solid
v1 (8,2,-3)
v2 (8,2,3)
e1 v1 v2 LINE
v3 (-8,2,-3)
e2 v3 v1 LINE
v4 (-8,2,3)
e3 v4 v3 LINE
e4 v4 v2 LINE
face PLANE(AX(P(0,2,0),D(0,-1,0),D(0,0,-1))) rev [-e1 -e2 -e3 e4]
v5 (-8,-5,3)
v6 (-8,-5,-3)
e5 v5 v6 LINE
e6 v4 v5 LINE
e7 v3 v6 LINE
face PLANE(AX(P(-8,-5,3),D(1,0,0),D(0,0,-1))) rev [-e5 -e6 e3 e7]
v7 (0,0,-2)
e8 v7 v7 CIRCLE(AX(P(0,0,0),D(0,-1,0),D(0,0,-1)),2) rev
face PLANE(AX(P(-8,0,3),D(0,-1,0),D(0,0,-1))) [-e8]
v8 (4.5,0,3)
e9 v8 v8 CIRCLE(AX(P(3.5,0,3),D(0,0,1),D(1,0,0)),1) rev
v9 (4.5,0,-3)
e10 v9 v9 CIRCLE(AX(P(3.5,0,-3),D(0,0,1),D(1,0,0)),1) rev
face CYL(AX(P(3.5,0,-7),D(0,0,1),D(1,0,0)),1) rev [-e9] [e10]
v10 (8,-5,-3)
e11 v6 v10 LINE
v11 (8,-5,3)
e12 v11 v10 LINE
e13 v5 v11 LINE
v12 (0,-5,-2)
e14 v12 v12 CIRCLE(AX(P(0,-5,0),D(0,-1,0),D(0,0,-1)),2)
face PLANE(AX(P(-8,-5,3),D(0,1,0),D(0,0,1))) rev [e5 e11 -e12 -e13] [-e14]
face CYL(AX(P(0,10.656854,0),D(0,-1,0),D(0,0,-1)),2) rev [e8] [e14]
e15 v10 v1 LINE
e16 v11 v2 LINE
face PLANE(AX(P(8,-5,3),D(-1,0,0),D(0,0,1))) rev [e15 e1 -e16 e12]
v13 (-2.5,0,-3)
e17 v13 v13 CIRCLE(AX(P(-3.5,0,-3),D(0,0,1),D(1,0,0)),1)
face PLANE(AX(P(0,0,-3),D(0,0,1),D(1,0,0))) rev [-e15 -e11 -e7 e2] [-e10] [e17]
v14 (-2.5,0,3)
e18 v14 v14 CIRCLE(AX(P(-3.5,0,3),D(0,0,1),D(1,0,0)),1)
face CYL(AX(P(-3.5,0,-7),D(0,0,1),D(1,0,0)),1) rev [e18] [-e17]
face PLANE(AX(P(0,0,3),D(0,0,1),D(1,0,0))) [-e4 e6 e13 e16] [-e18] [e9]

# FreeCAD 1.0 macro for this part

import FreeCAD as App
import Part
import Sketcher
Q = App.Units.Quantity

doc = App.newDocument("Part")
body = doc.addObject("PartDesign::Body", "Body")

# Sketch on XY plane
sketch1 = body.newObject("Sketcher::SketchObject", "Sketch")
sketch1.AttachmentSupport = (doc.getObject("XY_Plane"), [""])
sketch1.MapMode = "FlatFace"
sketch1.addGeometry([
    Part.LineSegment(App.Vector(-8, 5, 0), App.Vector(-8, -5, 0)),
    Part.LineSegment(App.Vector(-8, -5, 0), App.Vector(8, -5, 0)),
    Part.LineSegment(App.Vector(8, -5, 0), App.Vector(8, 5, 0)),
    Part.LineSegment(App.Vector(8, 5, 0), App.Vector(-8, 5, 0)),
], False)
sketch1.addConstraint([
    Sketcher.Constraint("Coincident", 0, 2, 1, 1),
    Sketcher.Constraint("Coincident", 1, 2, 2, 1),
    Sketcher.Constraint("Coincident", 2, 2, 3, 1),
    Sketcher.Constraint("Coincident", 3, 2, 0, 1),
    Sketcher.Constraint("Vertical", 0),
    Sketcher.Constraint("Horizontal", 1),
    Sketcher.Constraint("Vertical", 2),
    Sketcher.Constraint("Horizontal", 3),
    Sketcher.Constraint("Symmetric", 0, 2, 2, 2, -1, 1),
    Sketcher.Constraint("DistanceX", 1, 1, 1, 2, Q("16 mm")),
    Sketcher.Constraint("DistanceY", 0, 2, 0, 1, Q("10 mm")),
])
pad1 = body.newObject("PartDesign::Pad", "Pad")
pad1.Profile = sketch1
pad1.Length = 6
pad1.Midplane = True

# Sketch on XZ plane
sketch2 = body.newObject("Sketcher::SketchObject", "Sketch001")
sketch2.AttachmentSupport = (doc.getObject("XZ_Plane"), [""])
sketch2.MapMode = "FlatFace"
sketch2.AttachmentOffset = App.Placement(App.Vector(0, 0, 5), App.Rotation())
sketch2.addGeometry(Part.Circle(App.Vector(0, 0, 0), App.Vector(0, 0, 1), 2), False)
sketch2.addConstraint([
    Sketcher.Constraint("Coincident", 0, 3, -1, 1),
    Sketcher.Constraint("Diameter", 0, Q("4 mm")),
])
pocket1 = body.newObject("PartDesign::Pocket", "Pocket")
pocket1.Profile = sketch2
pocket1.Length = 5

# Sketch on XY plane
sketch3 = body.newObject("Sketcher::SketchObject", "Sketch002")
sketch3.AttachmentSupport = (doc.getObject("XY_Plane"), [""])
sketch3.MapMode = "FlatFace"
sketch3.AttachmentOffset = App.Placement(App.Vector(0, 0, 3), App.Rotation())
sketch3.addGeometry([
    Part.Circle(App.Vector(-3.5, 0, 0), App.Vector(0, 0, 1), 1),
    Part.Circle(App.Vector(3.5, 0, 0), App.Vector(0, 0, 1), 1),
], False)
sketch3.addConstraint([
    Sketcher.Constraint("Equal", 0, 1),
    Sketcher.Constraint("Symmetric", 0, 3, 1, 3, -1, 1),
    Sketcher.Constraint("PointOnObject", 0, 3, -1),
    Sketcher.Constraint("Diameter", 0, Q("2 mm")),
    Sketcher.Constraint("DistanceX", 0, 3, 1, 3, Q("7 mm")),
])
pocket2 = body.newObject("PartDesign::Pocket", "Pocket001")
pocket2.Profile = sketch3
pocket2.Length = 10

# Sketch on XZ plane
sketch4 = body.newObject("Sketcher::SketchObject", "Sketch003")
sketch4.AttachmentSupport = (doc.getObject("XZ_Plane"), [""])
sketch4.MapMode = "FlatFace"
sketch4.AttachmentOffset = App.Placement(App.Vector(0, 0, -5), App.Rotation())
sketch4.addGeometry([
    Part.LineSegment(App.Vector(-10, -4, 0), App.Vector(-10, 4, 0)),
    Part.LineSegment(App.Vector(-10, 4, 0), App.Vector(10, 4, 0)),
    Part.LineSegment(App.Vector(10, 4, 0), App.Vector(10, -4, 0)),
    Part.LineSegment(App.Vector(10, -4, 0), App.Vector(-10, -4, 0)),
], False)
sketch4.addConstraint([
    Sketcher.Constraint("Coincident", 0, 2, 1, 1),
    Sketcher.Constraint("Coincident", 1, 2, 2, 1),
    Sketcher.Constraint("Coincident", 2, 2, 3, 1),
    Sketcher.Constraint("Coincident", 3, 2, 0, 1),
    Sketcher.Constraint("Vertical", 0),
    Sketcher.Constraint("Horizontal", 1),
    Sketcher.Constraint("Vertical", 2),
    Sketcher.Constraint("Horizontal", 3),
    Sketcher.Constraint("Symmetric", 0, 2, 2, 2, -1, 1),
    Sketcher.Constraint("DistanceY", 0, 1, 0, 2, Q("7.992609 mm")),
    Sketcher.Constraint("DistanceX", 1, 1, 1, 2, Q("20.147346 mm")),
])
pocket3 = body.newObject("PartDesign::Pocket", "Pocket002")
pocket3.Profile = sketch4
pocket3.Length = 3
pocket3.Reversed = True

doc.recompute()
